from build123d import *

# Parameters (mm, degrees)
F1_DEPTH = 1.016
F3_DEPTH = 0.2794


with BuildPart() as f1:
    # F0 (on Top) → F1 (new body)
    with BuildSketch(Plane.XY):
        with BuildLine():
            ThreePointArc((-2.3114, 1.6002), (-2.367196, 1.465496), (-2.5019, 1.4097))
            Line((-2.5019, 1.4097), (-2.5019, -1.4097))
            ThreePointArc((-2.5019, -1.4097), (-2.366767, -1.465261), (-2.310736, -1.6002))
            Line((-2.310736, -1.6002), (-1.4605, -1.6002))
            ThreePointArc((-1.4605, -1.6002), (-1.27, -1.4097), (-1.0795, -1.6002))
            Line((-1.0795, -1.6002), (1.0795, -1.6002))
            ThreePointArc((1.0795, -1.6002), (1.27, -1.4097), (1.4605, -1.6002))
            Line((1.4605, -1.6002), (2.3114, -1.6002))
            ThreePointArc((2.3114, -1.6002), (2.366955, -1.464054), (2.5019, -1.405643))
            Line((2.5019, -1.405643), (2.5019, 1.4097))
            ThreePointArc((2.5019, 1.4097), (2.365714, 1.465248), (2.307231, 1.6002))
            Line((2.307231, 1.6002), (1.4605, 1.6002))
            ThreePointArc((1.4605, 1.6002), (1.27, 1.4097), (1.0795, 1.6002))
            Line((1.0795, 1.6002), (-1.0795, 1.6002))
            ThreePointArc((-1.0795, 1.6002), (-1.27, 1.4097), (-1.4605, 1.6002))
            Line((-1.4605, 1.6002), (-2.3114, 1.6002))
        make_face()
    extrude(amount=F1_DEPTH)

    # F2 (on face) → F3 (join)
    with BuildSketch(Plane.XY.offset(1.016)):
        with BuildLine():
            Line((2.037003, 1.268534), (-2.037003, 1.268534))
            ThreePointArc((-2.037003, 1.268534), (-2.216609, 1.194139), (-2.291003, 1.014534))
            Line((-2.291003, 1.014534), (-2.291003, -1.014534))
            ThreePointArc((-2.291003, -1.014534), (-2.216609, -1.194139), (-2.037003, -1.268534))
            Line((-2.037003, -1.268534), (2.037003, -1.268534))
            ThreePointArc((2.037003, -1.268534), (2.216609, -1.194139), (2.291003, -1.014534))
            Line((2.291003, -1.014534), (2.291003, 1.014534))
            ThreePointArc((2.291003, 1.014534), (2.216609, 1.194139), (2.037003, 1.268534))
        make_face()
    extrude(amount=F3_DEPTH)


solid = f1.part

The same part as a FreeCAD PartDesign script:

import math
import FreeCAD as App
import Part
import Sketcher
from FreeCAD import Vector
Q = App.Units.Quantity

doc = App.newDocument("Part")
body = doc.addObject("PartDesign::Body", "Body")

# Sketch on XY plane
sketch1 = doc.addObject("Sketcher::SketchObject", "Sketch")
body.addObject(sketch1)
sketch1.AttachmentSupport = (doc.XY_Plane, [""])
sketch1.MapMode = "FlatFace"
sketch1.addGeometry([
    Part.ArcOfCircle(Part.Circle(Vector(-2.5, 1.6, 0), Vector(0, 0, 1), 0.19), math.radians(-90), math.radians(0)),  # 0
    Part.LineSegment(Vector(-2.5, 1.41, 0), Vector(-2.5, -1.41, 0)),  # 1
    Part.ArcOfCircle(Part.Circle(Vector(-2.5, -1.6, 0), Vector(0, 0, 1), 0.19), math.radians(0), math.radians(90)),  # 2
    Part.LineSegment(Vector(-2.31, -1.6, 0), Vector(-1.46, -1.6, 0)),  # 3
    Part.ArcOfCircle(Part.Circle(Vector(-1.27, -1.6, 0), Vector(0, 0, 1), 0.19), math.radians(0), math.radians(180)),  # 4
    Part.LineSegment(Vector(-1.08, -1.6, 0), Vector(1.08, -1.6, 0)),  # 5
    Part.ArcOfCircle(Part.Circle(Vector(1.27, -1.6, 0), Vector(0, 0, 1), 0.19), math.radians(0), math.radians(180)),  # 6
    Part.LineSegment(Vector(1.46, -1.6, 0), Vector(2.31, -1.6, 0)),  # 7
    Part.ArcOfCircle(Part.Circle(Vector(2.51, -1.6, 0), Vector(0, 0, 1), 0.19), math.radians(91), math.radians(180)),  # 8
    Part.LineSegment(Vector(2.5, -1.41, 0), Vector(2.5, 1.41, 0)),  # 9
    Part.ArcOfCircle(Part.Circle(Vector(2.5, 1.6, 0), Vector(0, 0, 1), 0.19), math.radians(-179), math.radians(-90)),  # 10
    Part.LineSegment(Vector(2.31, 1.6, 0), Vector(1.46, 1.6, 0)),  # 11
    Part.ArcOfCircle(Part.Circle(Vector(1.27, 1.6, 0), Vector(0, 0, 1), 0.19), math.radians(180), math.radians(360)),  # 12
    Part.LineSegment(Vector(1.08, 1.6, 0), Vector(-1.08, 1.6, 0)),  # 13
    Part.ArcOfCircle(Part.Circle(Vector(-1.27, 1.6, 0), Vector(0, 0, 1), 0.19), math.radians(180), math.radians(360)),  # 14
    Part.LineSegment(Vector(-1.46, 1.6, 0), Vector(-2.31, 1.6, 0)),  # 15
], False)
sketch1.addConstraint([
    Sketcher.Constraint("Coincident", 0, 1, 1, 1),
    Sketcher.Constraint("Coincident", 1, 2, 2, 2),
    Sketcher.Constraint("Coincident", 2, 1, 3, 1),
    Sketcher.Constraint("Coincident", 3, 2, 4, 2),
    Sketcher.Constraint("Coincident", 4, 1, 5, 1),
    Sketcher.Constraint("Coincident", 5, 2, 6, 2),
    Sketcher.Constraint("Coincident", 6, 1, 7, 1),
    Sketcher.Constraint("Coincident", 7, 2, 8, 2),
    Sketcher.Constraint("Coincident", 8, 1, 9, 1),
    Sketcher.Constraint("Coincident", 9, 2, 10, 2),
    Sketcher.Constraint("Coincident", 10, 1, 11, 1),
    Sketcher.Constraint("Coincident", 11, 2, 12, 2),
    Sketcher.Constraint("Coincident", 12, 1, 13, 1),
    Sketcher.Constraint("Coincident", 13, 2, 14, 2),
    Sketcher.Constraint("Coincident", 14, 1, 15, 1),
    Sketcher.Constraint("Coincident", 15, 2, 0, 2),
    Sketcher.Constraint("Vertical", 1),
    Sketcher.Constraint("Horizontal", 3),
    Sketcher.Constraint("Horizontal", 5),
    Sketcher.Constraint("Horizontal", 7),
    Sketcher.Constraint("Vertical", 9),
    Sketcher.Constraint("Horizontal", 11),
    Sketcher.Constraint("Horizontal", 13),
    Sketcher.Constraint("Horizontal", 15),
    Sketcher.Constraint("Equal", 0, 2),
    Sketcher.Constraint("Equal", 2, 4),
    Sketcher.Constraint("Equal", 4, 6),
    Sketcher.Constraint("Equal", 6, 12),
    Sketcher.Constraint("Equal", 12, 14),
    Sketcher.Constraint("Symmetric", 4, 3, 12, 3, -1, 1),
    Sketcher.Constraint("Symmetric", 6, 3, 14, 3, -1, 1),
    Sketcher.Constraint("Symmetric", 1, 2, 9, 2, -1, 1),
    Sketcher.Constraint("Symmetric", 7, 2, 15, 2, -1, 1),
    Sketcher.Constraint("Symmetric", 4, 3, 6, 3, -2),
    Sketcher.Constraint("Horizontal", 2, 3, 4, 3),
    Sketcher.Constraint("Horizontal", 6, 3, 8, 3),
    Sketcher.Constraint("Horizontal", 0, 3, 12, 3),
    Sketcher.Constraint("Horizontal", 8, 3, 2, 1),
    Sketcher.Constraint("Horizontal", 3, 2, 4, 1),
    Sketcher.Constraint("Horizontal", 5, 2, 6, 1),
    Sketcher.Constraint("Horizontal", 14, 3, 10, 1),
    Sketcher.Constraint("Horizontal", 11, 2, 12, 1),
    Sketcher.Constraint("Vertical", 10, 3, 8, 1),
    Sketcher.Constraint("Radius", 0, Q("0.0075 in")),
    Sketcher.Constraint("DistanceX", 4, 3, 6, 3, Q("0.1 in")),
    Sketcher.Constraint("DistanceY", 1, 2, 1, 1, Q("0.111 in")),
    Sketcher.Constraint("Radius", 8, 0.1946),
    Sketcher.Constraint("DistanceX", 7, 1, 7, 2, Q("0.0335 in")),
    Sketcher.Constraint("DistanceX", 0, 3, 10, 3, Q("0.1969999 in")),
    Sketcher.Constraint("Radius", 10, 0.194713),
    Sketcher.Constraint("DistanceX", 3, 1, 3, 2, 0.850236),
])
pad1 = doc.addObject("PartDesign::Pad", "Pad")
body.addObject(pad1)
pad1.Profile = sketch1
pad1.Length = Q("0.04 in")

# Sketch on XY plane
sketch2 = doc.addObject("Sketcher::SketchObject", "Sketch001")
body.addObject(sketch2)
sketch2.AttachmentSupport = (doc.XY_Plane, [""])
sketch2.MapMode = "FlatFace"
sketch2.AttachmentOffset = App.Placement(Vector(0, 0, 0.04 * 25.4), App.Rotation())
sketch2.addGeometry([
    Part.LineSegment(Vector(2.04, 1.27, 0), Vector(-2.04, 1.27, 0)),  # 0
    Part.ArcOfCircle(Part.Circle(Vector(-2.04, 1.01, 0), Vector(0, 0, 1), 0.25), math.radians(90), math.radians(180)),  # 1
    Part.LineSegment(Vector(-2.29, 1.01, 0), Vector(-2.29, -1.01, 0)),  # 2
    Part.ArcOfCircle(Part.Circle(Vector(-2.04, -1.01, 0), Vector(0, 0, 1), 0.25), math.radians(180), math.radians(270)),  # 3
    Part.LineSegment(Vector(-2.04, -1.27, 0), Vector(2.04, -1.27, 0)),  # 4
    Part.ArcOfCircle(Part.Circle(Vector(2.04, -1.01, 0), Vector(0, 0, 1), 0.25), math.radians(-90), math.radians(0)),  # 5
    Part.LineSegment(Vector(2.29, -1.01, 0), Vector(2.29, 1.01, 0)),  # 6
    Part.ArcOfCircle(Part.Circle(Vector(2.04, 1.01, 0), Vector(0, 0, 1), 0.25), math.radians(0), math.radians(90)),  # 7
], False)
sketch2.addConstraint([
    Sketcher.Constraint("Coincident", 0, 2, 1, 1),
    Sketcher.Constraint("Coincident", 1, 2, 2, 1),
    Sketcher.Constraint("Coincident", 2, 2, 3, 1),
    Sketcher.Constraint("Coincident", 3, 2, 4, 1),
    Sketcher.Constraint("Coincident", 4, 2, 5, 1),
    Sketcher.Constraint("Coincident", 5, 2, 6, 1),
    Sketcher.Constraint("Coincident", 6, 2, 7, 1),
    Sketcher.Constraint("Coincident", 7, 2, 0, 1),
    Sketcher.Constraint("Horizontal", 0),
    Sketcher.Constraint("Vertical", 2),
    Sketcher.Constraint("Horizontal", 4),
    Sketcher.Constraint("Vertical", 6),
    Sketcher.Constraint("Equal", 1, 3),
    Sketcher.Constraint("Equal", 3, 5),
    Sketcher.Constraint("Equal", 5, 7),
    Sketcher.Constraint("Symmetric", 1, 3, 5, 3, -1, 1),
    Sketcher.Constraint("Horizontal", 7, 3, 1, 2),
    Sketcher.Constraint("Horizontal", 5, 3, 2, 2),
    Sketcher.Constraint("Horizontal", 2, 2, 5, 2),
    Sketcher.Constraint("Horizontal", 1, 2, 6, 2),
    Sketcher.Constraint("Vertical", 3, 3, 0, 2),
    Sketcher.Constraint("Vertical", 0, 2, 3, 2),
    Sketcher.Constraint("Vertical", 7, 3, 4, 2),
    Sketcher.Constraint("Vertical", 4, 2, 7, 2),
    Sketcher.Constraint("Radius", 1, Q("0.0099999 in")),
    Sketcher.Constraint("DistanceY", 2, 2, 2, 1, 2.029068),
    Sketcher.Constraint("DistanceX", 0, 2, 0, 1, 4.074006),
])
pad2 = doc.addObject("PartDesign::Pad", "Pad001")
body.addObject(pad2)
pad2.Profile = sketch2
pad2.Length = Q("0.011 in")

doc.recompute()
